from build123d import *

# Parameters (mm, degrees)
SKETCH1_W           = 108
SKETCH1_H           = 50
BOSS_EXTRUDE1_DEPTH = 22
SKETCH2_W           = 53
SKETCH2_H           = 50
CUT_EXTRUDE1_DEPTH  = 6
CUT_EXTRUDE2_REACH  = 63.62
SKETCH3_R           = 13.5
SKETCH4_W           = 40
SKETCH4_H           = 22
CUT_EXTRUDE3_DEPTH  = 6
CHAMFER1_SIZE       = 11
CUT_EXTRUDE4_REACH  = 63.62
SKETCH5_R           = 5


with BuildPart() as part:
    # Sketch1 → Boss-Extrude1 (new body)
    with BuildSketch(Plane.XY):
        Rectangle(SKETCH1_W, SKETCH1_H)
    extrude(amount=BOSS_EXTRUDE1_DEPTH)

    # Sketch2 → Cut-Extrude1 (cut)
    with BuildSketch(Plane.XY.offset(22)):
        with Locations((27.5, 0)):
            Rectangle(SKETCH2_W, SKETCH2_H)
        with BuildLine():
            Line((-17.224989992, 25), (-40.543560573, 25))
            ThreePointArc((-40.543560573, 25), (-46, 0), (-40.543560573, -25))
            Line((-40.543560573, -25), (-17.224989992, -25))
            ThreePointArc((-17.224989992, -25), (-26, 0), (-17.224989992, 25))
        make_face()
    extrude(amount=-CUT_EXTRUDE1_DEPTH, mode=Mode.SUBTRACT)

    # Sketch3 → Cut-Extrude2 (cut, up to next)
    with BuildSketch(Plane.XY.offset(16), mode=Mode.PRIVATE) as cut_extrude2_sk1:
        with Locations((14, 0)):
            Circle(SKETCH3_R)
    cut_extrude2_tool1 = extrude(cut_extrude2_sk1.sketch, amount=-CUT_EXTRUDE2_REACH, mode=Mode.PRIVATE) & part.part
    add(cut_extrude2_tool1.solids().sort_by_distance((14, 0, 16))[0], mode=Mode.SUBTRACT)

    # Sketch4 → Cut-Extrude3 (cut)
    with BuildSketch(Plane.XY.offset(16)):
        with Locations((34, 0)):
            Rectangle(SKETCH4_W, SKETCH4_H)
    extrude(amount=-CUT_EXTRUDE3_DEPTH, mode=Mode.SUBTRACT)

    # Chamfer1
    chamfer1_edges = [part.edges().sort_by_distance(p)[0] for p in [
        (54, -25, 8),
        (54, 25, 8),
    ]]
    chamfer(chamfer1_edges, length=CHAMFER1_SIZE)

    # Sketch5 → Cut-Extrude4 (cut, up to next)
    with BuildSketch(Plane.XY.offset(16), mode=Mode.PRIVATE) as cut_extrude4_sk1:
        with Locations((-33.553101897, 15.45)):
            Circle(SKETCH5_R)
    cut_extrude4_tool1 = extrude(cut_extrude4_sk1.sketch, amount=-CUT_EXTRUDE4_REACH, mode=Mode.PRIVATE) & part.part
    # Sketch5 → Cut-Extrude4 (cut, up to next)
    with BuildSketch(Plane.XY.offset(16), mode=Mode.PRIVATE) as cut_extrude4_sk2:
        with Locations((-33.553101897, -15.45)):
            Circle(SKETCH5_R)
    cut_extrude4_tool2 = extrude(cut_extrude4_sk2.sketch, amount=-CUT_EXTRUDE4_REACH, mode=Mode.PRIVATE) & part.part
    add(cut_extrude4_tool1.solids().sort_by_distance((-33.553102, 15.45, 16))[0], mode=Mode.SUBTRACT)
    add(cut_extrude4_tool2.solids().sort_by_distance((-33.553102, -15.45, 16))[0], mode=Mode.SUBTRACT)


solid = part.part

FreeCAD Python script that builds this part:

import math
import FreeCAD as App
import Part
import Sketcher
Q = App.Units.Quantity


def edges_at(feature, points):
    """Names of the edges that pass closest to the given points."""
    edges = feature.Shape.Edges
    near = lambda p: min(range(len(edges)), key=lambda i: edges[i].distToShape(Part.Vertex(*p))[0])
    return sorted({f"Edge{near(p) + 1}" for p in points})


def add_polygon(sketch, points):
    """Adds a closed chain of lines whose ends are joined by coincident constraints."""
    first, n = sketch.GeometryCount, len(points)
    for a, b in zip(points, points[1:] + points[:1]):
        sketch.addGeometry(Part.LineSegment(App.Vector(*a, 0), App.Vector(*b, 0)), False)
    for i in range(n):
        sketch.addConstraint(Sketcher.Constraint("Coincident", first + i, 2, first + (i + 1) % n, 1))

doc = App.newDocument("Part")
body = doc.addObject("PartDesign::Body", "Body")

# Sketch on XY plane
sketch1 = body.newObject("Sketcher::SketchObject", "Sketch")
sketch1.AttachmentSupport = (doc.getObject("XY_Plane"), [""])
sketch1.MapMode = "FlatFace"
add_polygon(sketch1, [(-54, 25), (-54, -25), (54, -25), (54, 25)])  # lines 0-3
sketch1.addConstraint([
    Sketcher.Constraint("Vertical", 0),
    Sketcher.Constraint("Horizontal", 1),
    Sketcher.Constraint("Vertical", 2),
    Sketcher.Constraint("Horizontal", 3),
    Sketcher.Constraint("Symmetric", 0, 2, 2, 2, -1, 1),
    Sketcher.Constraint("DistanceX", 1, 1, 1, 2, Q("108 mm")),
    Sketcher.Constraint("DistanceY", 0, 2, 0, 1, Q("50 mm")),
])
pad1 = body.newObject("PartDesign::Pad", "Pad")
pad1.Profile = sketch1
pad1.Length = 22

# Sketch on XY plane
sketch2 = body.newObject("Sketcher::SketchObject", "Sketch001")
sketch2.AttachmentSupport = (doc.getObject("XY_Plane"), [""])
sketch2.MapMode = "FlatFace"
sketch2.AttachmentOffset = App.Placement(App.Vector(0, 0, 22), App.Rotation())
add_polygon(sketch2, [(1, 25), (1, -25), (54, -25), (54, 25)])  # lines 0-3
sketch2.addGeometry(Part.LineSegment(App.Vector(-17, 25, 0), App.Vector(-41, 25, 0)), False)  # 4
sketch2.addGeometry(Part.ArcOfCircle(Part.Circle(App.Vector(14, 0, 0), App.Vector(0, 0, 1), 60), math.radians(155), math.radians(205)), False)  # 5
sketch2.addGeometry(Part.LineSegment(App.Vector(-41, -25, 0), App.Vector(-17, -25, 0)), False)  # 6
sketch2.addGeometry(Part.ArcOfCircle(Part.Circle(App.Vector(14, 0, 0), App.Vector(0, 0, 1), 40), math.radians(141), math.radians(219)), False)  # 7
sketch2.addConstraint([
    Sketcher.Constraint("Coincident", 4, 2, 5, 1),
    Sketcher.Constraint("Coincident", 5, 2, 6, 1),
    Sketcher.Constraint("Coincident", 6, 2, 7, 2),
    Sketcher.Constraint("Coincident", 7, 1, 4, 1),
    Sketcher.Constraint("Vertical", 0),
    Sketcher.Constraint("Horizontal", 1),
    Sketcher.Constraint("Vertical", 2),
    Sketcher.Constraint("Horizontal", 3),
    Sketcher.Constraint("Horizontal", 4),
    Sketcher.Constraint("Horizontal", 6),
    Sketcher.Constraint("Coincident", 7, 3, 5, 3),
    Sketcher.Constraint("Symmetric", 4, 2, 5, 2, -1),
    Sketcher.Constraint("Horizontal", 3, 2, 4, 2),
    Sketcher.Constraint("Horizontal", 1, 2, 5, 2),
    Sketcher.Constraint("Radius", 5, Q("60 mm")),
    Sketcher.Constraint("Radius", 7, Q("40 mm")),
    Sketcher.Constraint("DistanceX", 1, 1, 1, 2, Q("53 mm")),
    Sketcher.Constraint("DistanceY", 0, 2, 0, 1, Q("50 mm")),
    Sketcher.Constraint("DistanceX", -1, 1, 5, 3, Q("14 mm")),
    Sketcher.Constraint("DistanceX", -1, 1, 0, 2, Q("1 mm")),
])
pocket1 = body.newObject("PartDesign::Pocket", "Pocket")
pocket1.Profile = sketch2
pocket1.Length = 6

# Sketch on XY plane
sketch3 = body.newObject("Sketcher::SketchObject", "Sketch002")
sketch3.AttachmentSupport = (doc.getObject("XY_Plane"), [""])
sketch3.MapMode = "FlatFace"
sketch3.AttachmentOffset = App.Placement(App.Vector(0, 0, 16), App.Rotation())
sketch3.addGeometry(Part.Circle(App.Vector(14, 0, 0), App.Vector(0, 0, 1), 14), False)
sketch3.addConstraint([
    Sketcher.Constraint("PointOnObject", 0, 3, -1),
    Sketcher.Constraint("Diameter", 0, Q("27 mm")),
    Sketcher.Constraint("DistanceX", -1, 1, 0, 3, Q("14 mm")),
])
pocket2 = body.newObject("PartDesign::Pocket", "Pocket001")
pocket2.Profile = sketch3
pocket2.Type = "UpToFirst"

# Sketch on XY plane
sketch4 = body.newObject("Sketcher::SketchObject", "Sketch003")
sketch4.AttachmentSupport = (doc.getObject("XY_Plane"), [""])
sketch4.MapMode = "FlatFace"
sketch4.AttachmentOffset = App.Placement(App.Vector(0, 0, 16), App.Rotation())
add_polygon(sketch4, [(14, 11), (14, -11), (54, -11), (54, 11)])  # lines 0-3
sketch4.addConstraint([
    Sketcher.Constraint("Vertical", 0),
    Sketcher.Constraint("Horizontal", 1),
    Sketcher.Constraint("Vertical", 2),
    Sketcher.Constraint("Horizontal", 3),
    Sketcher.Constraint("DistanceX", 1, 1, 1, 2, Q("40 mm")),
    Sketcher.Constraint("DistanceY", 0, 2, 0, 1, Q("22 mm")),
    Sketcher.Constraint("DistanceX", -1, 1, 0, 2, Q("14 mm")),
    Sketcher.Constraint("DistanceY", 0, 2, -1, 1, Q("11 mm")),
])
pocket3 = body.newObject("PartDesign::Pocket", "Pocket002")
pocket3.Profile = sketch4
pocket3.Length = 6
doc.recompute()

chamfer = body.newObject("PartDesign::Chamfer", "Chamfer")
chamfer.Base = (pocket3, edges_at(pocket3, [(54, -25, 8), (54, 25, 8)]))
chamfer.Size = 11

# Sketch on XY plane
sketch5 = body.newObject("Sketcher::SketchObject", "Sketch004")
sketch5.AttachmentSupport = (doc.getObject("XY_Plane"), [""])
sketch5.MapMode = "FlatFace"
sketch5.AttachmentOffset = App.Placement(App.Vector(0, 0, 16), App.Rotation())
sketch5.addGeometry(Part.Circle(App.Vector(-34, 15, 0), App.Vector(0, 0, 1), 5), False)
sketch5.addConstraint([
    Sketcher.Constraint("Diameter", 0, Q("10 mm")),
    Sketcher.Constraint("DistanceY", -1, 1, 0, 3, Q("15.45 mm")),
    Sketcher.Constraint("DistanceX", 0, 3, -1, 1, Q("33.553102 mm")),
])
pocket4 = body.newObject("PartDesign::Pocket", "Pocket003")
pocket4.Profile = sketch5
pocket4.Type = "UpToFirst"

# Sketch on XY plane
sketch6 = body.newObject("Sketcher::SketchObject", "Sketch005")
sketch6.AttachmentSupport = (doc.getObject("XY_Plane"), [""])
sketch6.MapMode = "FlatFace"
sketch6.AttachmentOffset = App.Placement(App.Vector(0, 0, 16), App.Rotation())
sketch6.addGeometry(Part.Circle(App.Vector(-34, -15, 0), App.Vector(0, 0, 1), 5), False)
sketch6.addConstraint([
    Sketcher.Constraint("Diameter", 0, Q("10 mm")),
    Sketcher.Constraint("DistanceY", 0, 3, -1, 1, Q("15.45 mm")),
    Sketcher.Constraint("DistanceX", 0, 3, -1, 1, Q("33.553102 mm")),
])
pocket5 = body.newObject("PartDesign::Pocket", "Pocket004")
pocket5.Profile = sketch6
pocket5.Type = "UpToFirst"

doc.recompute()
